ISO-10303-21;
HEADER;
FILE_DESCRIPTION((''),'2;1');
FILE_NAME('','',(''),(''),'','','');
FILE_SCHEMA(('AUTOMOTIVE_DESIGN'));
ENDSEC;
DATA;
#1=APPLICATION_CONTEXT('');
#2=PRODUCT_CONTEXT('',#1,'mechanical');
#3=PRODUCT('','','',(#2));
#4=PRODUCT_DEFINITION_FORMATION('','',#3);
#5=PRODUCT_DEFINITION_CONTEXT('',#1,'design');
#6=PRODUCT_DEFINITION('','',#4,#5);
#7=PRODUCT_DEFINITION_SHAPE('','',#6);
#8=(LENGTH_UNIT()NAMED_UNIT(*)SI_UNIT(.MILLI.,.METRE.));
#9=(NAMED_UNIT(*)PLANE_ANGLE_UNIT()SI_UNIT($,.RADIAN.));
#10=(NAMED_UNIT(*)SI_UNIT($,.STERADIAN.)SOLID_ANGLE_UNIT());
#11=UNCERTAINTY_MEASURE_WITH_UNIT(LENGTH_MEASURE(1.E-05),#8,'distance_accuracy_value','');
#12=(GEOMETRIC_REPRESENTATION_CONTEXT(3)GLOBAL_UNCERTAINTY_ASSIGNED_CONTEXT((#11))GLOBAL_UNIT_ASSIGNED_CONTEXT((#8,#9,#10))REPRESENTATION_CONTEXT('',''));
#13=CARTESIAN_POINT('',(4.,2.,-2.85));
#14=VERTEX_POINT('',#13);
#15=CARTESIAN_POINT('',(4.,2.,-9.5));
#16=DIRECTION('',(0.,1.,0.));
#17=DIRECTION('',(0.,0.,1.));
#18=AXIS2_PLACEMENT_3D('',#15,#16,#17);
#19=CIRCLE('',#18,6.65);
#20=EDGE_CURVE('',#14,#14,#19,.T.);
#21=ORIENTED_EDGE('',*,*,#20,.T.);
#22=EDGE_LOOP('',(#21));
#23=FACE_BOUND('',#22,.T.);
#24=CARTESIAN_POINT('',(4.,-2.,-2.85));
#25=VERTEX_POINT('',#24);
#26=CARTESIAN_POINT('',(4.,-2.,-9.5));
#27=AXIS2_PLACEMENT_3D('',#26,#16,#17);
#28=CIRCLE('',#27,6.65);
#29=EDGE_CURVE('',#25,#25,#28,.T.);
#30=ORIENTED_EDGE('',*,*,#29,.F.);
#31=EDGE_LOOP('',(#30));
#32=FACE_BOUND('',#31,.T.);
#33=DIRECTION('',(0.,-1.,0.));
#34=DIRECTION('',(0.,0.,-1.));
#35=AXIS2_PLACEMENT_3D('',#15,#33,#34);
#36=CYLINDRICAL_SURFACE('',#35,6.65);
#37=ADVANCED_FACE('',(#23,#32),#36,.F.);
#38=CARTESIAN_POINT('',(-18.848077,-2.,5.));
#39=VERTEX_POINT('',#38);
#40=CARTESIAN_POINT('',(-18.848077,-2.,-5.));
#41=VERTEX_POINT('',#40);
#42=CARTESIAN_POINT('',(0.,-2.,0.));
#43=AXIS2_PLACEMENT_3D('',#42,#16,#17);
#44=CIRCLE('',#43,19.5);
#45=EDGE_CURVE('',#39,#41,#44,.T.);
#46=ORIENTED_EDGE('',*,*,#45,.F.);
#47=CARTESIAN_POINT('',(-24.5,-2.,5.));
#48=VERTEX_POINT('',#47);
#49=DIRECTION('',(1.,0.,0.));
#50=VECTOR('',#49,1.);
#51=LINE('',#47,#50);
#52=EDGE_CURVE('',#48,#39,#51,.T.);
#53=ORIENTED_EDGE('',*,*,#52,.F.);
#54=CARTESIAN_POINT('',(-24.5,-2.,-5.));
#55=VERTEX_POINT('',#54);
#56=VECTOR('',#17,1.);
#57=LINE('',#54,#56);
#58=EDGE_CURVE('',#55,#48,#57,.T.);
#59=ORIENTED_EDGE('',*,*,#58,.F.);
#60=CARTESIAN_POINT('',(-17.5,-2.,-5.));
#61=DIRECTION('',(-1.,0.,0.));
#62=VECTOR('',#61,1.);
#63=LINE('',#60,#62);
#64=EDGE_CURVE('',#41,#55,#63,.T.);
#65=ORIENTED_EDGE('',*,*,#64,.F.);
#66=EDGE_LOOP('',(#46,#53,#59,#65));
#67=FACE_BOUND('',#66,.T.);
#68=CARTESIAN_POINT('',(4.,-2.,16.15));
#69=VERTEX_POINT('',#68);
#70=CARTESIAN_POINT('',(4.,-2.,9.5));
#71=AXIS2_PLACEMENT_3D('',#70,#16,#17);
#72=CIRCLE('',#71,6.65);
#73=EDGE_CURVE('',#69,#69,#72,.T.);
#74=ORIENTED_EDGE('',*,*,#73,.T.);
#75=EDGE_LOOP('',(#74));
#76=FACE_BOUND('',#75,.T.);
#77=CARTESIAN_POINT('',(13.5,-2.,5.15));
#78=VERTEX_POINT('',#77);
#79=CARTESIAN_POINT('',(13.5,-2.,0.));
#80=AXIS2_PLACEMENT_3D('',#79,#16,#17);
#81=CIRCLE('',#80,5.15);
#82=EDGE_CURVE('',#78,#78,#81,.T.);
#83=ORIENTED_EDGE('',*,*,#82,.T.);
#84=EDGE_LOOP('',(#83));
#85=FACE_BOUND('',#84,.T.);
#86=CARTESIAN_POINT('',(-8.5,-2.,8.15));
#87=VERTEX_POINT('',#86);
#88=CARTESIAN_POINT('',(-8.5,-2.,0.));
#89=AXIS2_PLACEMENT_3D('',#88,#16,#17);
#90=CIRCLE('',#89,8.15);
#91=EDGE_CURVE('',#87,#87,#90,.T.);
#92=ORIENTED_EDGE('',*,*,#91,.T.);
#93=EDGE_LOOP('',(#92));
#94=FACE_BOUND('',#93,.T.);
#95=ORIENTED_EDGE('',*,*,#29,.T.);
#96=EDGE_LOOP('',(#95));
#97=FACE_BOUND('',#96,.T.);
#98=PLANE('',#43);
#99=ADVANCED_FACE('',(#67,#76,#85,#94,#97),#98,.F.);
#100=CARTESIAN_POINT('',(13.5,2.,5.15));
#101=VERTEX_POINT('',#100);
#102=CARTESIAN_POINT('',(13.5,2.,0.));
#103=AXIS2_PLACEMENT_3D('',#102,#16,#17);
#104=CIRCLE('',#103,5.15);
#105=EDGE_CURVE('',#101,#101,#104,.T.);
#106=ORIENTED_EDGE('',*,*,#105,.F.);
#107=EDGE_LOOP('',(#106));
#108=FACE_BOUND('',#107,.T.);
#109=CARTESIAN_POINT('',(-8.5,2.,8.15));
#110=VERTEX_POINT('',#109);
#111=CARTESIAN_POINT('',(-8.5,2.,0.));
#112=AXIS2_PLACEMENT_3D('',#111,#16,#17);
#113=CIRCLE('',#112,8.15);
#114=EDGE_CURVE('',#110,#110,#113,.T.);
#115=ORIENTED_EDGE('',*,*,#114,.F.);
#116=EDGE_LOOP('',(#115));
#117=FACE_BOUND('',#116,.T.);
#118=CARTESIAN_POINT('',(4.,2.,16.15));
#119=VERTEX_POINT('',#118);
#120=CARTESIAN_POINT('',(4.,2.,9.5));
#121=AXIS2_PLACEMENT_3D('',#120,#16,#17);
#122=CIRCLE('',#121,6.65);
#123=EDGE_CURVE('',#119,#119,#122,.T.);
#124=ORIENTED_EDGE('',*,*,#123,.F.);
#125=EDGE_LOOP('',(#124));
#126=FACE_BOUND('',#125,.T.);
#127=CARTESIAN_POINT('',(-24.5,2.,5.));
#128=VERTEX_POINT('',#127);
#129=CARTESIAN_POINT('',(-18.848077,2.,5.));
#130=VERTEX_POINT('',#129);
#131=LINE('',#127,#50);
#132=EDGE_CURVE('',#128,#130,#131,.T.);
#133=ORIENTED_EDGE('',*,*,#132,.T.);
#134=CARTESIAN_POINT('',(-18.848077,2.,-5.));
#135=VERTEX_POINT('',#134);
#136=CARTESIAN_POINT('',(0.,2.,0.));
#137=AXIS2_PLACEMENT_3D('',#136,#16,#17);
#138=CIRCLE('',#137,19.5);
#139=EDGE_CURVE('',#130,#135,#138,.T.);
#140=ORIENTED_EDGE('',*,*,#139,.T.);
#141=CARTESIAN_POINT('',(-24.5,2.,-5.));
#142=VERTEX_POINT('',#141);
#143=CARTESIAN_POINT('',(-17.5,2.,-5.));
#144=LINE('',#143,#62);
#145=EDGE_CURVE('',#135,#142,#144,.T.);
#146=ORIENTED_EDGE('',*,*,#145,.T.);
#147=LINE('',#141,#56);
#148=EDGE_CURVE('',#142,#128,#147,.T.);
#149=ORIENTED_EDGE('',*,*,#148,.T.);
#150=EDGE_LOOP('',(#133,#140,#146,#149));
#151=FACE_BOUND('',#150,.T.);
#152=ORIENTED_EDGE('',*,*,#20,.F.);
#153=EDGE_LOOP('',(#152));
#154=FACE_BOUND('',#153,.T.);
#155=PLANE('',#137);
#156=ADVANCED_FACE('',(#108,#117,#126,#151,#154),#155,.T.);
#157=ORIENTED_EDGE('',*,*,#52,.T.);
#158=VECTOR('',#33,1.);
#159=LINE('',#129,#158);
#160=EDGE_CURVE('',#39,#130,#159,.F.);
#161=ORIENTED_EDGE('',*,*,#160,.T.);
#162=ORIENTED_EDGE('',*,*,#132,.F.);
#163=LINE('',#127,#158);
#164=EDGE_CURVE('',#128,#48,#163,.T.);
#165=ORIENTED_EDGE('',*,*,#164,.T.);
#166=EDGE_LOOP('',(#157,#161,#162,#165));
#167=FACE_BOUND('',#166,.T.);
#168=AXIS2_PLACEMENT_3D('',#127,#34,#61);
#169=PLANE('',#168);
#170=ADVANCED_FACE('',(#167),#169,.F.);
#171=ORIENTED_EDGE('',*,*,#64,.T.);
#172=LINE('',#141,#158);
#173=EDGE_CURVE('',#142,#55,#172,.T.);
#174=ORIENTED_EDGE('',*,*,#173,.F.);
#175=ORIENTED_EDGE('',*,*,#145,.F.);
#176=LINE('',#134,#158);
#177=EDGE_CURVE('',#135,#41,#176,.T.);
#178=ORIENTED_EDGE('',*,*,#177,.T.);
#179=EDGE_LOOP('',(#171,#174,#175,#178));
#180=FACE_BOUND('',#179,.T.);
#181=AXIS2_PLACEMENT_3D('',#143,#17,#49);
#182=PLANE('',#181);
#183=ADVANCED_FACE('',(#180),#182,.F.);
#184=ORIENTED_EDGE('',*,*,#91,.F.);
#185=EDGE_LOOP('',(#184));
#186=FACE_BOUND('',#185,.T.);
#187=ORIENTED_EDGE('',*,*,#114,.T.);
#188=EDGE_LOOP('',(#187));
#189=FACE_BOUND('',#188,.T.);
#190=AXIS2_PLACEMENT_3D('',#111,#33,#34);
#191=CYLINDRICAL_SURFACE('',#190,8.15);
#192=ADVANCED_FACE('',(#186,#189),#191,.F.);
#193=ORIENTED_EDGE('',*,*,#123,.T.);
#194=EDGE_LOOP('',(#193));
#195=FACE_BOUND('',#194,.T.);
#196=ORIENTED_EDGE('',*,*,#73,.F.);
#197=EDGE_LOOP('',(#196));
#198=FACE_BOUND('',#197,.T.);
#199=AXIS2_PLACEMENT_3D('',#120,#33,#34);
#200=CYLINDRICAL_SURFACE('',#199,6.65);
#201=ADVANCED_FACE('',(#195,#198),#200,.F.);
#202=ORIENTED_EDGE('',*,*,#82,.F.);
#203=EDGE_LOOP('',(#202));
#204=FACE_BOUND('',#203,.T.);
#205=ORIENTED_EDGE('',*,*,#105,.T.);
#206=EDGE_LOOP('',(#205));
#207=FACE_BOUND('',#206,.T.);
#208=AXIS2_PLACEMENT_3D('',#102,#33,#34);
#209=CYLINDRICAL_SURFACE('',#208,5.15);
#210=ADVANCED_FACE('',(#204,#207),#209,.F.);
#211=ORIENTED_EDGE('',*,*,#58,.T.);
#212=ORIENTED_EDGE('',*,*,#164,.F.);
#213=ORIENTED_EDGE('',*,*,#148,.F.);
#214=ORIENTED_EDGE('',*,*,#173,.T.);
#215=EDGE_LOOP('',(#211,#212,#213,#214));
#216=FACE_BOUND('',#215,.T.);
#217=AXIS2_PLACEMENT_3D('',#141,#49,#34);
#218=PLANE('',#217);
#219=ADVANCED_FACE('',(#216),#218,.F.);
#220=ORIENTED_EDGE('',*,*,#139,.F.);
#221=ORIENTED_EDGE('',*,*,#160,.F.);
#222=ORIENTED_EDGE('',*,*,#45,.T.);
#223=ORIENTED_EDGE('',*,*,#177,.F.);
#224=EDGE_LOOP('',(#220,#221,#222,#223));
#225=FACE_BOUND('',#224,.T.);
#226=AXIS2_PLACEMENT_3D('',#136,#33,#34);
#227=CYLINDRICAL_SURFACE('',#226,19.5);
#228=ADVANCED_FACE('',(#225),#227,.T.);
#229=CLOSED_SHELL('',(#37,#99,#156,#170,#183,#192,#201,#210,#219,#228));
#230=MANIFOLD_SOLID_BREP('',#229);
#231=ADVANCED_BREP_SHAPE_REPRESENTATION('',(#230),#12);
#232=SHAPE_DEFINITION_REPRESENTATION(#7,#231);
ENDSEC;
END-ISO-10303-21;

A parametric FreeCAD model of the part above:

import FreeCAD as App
import Part
import Sketcher
from FreeCAD import Vector
Q = App.Units.Quantity


def add_polygon(sketch, points):
    """Adds a closed chain of lines whose ends are joined by coincident constraints."""
    first, n = sketch.GeometryCount, len(points)
    for a, b in zip(points, points[1:] + points[:1]):
        sketch.addGeometry(Part.LineSegment(App.Vector(*a, 0), App.Vector(*b, 0)), False)
    for i in range(n):
        sketch.addConstraint(Sketcher.Constraint("Coincident", first + i, 2, first + (i + 1) % n, 1))

doc = App.newDocument("Part")
body = doc.addObject("PartDesign::Body", "Body")

sketch1 = body.newObject("Sketcher::SketchObject", "Sketch")
sketch1.AttachmentSupport = (doc.getObject("XZ_Plane"), [""])
sketch1.MapMode = "FlatFace"
sketch1.AttachmentOffset = App.Placement(Vector(0, 0, 2), App.Rotation())
sketch1.addGeometry(Part.Circle(Vector(0, 0, 0), Vector(0, 0, 1), 20), False)
sketch1.addGeometry(Part.Circle(Vector(-8, 0, 0), Vector(0, 0, 1), 8), False)
sketch1.addGeometry(Part.Circle(Vector(4, -10, 0), Vector(0, 0, 1), 7), False)
sketch1.addGeometry(Part.Circle(Vector(4, 10, 0), Vector(0, 0, 1), 7), False)
sketch1.addGeometry(Part.Circle(Vector(14, 0, 0), Vector(0, 0, 1), 5), False)
sketch1.addConstraint(Sketcher.Constraint("Coincident", 0, 3, -1, 1))
sketch1.addConstraint(Sketcher.Constraint("Equal", 2, 3))
sketch1.addConstraint(Sketcher.Constraint("Symmetric", 2, 3, 3, 3, -1))
sketch1.addConstraint(Sketcher.Constraint("PointOnObject", 1, 3, -1))
sketch1.addConstraint(Sketcher.Constraint("PointOnObject", 4, 3, -1))
sketch1.addConstraint(Sketcher.Constraint("Diameter", 0, Q("39 mm")))
sketch1.addConstraint(Sketcher.Constraint("Diameter", 1, Q("16.3 mm")))
sketch1.addConstraint(Sketcher.Constraint("Diameter", 2, Q("13.3 mm")))
sketch1.addConstraint(Sketcher.Constraint("Diameter", 4, Q("10.3 mm")))
sketch1.addConstraint(Sketcher.Constraint("DistanceX", -1, 1, 2, 3, Q("4 mm")))
sketch1.addConstraint(Sketcher.Constraint("DistanceY", 2, 3, 3, 3, Q("19 mm")))
sketch1.addConstraint(Sketcher.Constraint("DistanceX", 1, 3, 4, 3, Q("22 mm")))
sketch1.addConstraint(Sketcher.Constraint("DistanceX", 1, 3, -1, 1, Q("8.5 mm")))
pad1 = body.newObject("PartDesign::Pad", "Pad")
pad1.Profile = sketch1
pad1.Length = 4
pad1.Reversed = True

sketch2 = body.newObject("Sketcher::SketchObject", "Sketch001")
sketch2.AttachmentSupport = (doc.getObject("XZ_Plane"), [""])
sketch2.MapMode = "FlatFace"
sketch2.AttachmentOffset = App.Placement(Vector(0, 0, 2), App.Rotation())
add_polygon(sketch2, [(-24, -5), (-24, 5), (-18, 5), (-18, -5)])
sketch2.addConstraint(Sketcher.Constraint("Vertical", 0))
sketch2.addConstraint(Sketcher.Constraint("Horizontal", 1))
sketch2.addConstraint(Sketcher.Constraint("Vertical", 2))
sketch2.addConstraint(Sketcher.Constraint("Horizontal", 3))
sketch2.addConstraint(Sketcher.Constraint("DistanceX", 1, 1, 1, 2, Q("7 mm")))
sketch2.addConstraint(Sketcher.Constraint("DistanceY", 0, 1, 0, 2, Q("10 mm")))
sketch2.addConstraint(Sketcher.Constraint("DistanceY", -1, 1, 0, 2, Q("5 mm")))
sketch2.addConstraint(Sketcher.Constraint("DistanceX", 0, 2, -1, 1, Q("24.5 mm")))
pad2 = body.newObject("PartDesign::Pad", "Pad001")
pad2.Profile = sketch2
pad2.Length = 4
pad2.Reversed = True

doc.recompute()
